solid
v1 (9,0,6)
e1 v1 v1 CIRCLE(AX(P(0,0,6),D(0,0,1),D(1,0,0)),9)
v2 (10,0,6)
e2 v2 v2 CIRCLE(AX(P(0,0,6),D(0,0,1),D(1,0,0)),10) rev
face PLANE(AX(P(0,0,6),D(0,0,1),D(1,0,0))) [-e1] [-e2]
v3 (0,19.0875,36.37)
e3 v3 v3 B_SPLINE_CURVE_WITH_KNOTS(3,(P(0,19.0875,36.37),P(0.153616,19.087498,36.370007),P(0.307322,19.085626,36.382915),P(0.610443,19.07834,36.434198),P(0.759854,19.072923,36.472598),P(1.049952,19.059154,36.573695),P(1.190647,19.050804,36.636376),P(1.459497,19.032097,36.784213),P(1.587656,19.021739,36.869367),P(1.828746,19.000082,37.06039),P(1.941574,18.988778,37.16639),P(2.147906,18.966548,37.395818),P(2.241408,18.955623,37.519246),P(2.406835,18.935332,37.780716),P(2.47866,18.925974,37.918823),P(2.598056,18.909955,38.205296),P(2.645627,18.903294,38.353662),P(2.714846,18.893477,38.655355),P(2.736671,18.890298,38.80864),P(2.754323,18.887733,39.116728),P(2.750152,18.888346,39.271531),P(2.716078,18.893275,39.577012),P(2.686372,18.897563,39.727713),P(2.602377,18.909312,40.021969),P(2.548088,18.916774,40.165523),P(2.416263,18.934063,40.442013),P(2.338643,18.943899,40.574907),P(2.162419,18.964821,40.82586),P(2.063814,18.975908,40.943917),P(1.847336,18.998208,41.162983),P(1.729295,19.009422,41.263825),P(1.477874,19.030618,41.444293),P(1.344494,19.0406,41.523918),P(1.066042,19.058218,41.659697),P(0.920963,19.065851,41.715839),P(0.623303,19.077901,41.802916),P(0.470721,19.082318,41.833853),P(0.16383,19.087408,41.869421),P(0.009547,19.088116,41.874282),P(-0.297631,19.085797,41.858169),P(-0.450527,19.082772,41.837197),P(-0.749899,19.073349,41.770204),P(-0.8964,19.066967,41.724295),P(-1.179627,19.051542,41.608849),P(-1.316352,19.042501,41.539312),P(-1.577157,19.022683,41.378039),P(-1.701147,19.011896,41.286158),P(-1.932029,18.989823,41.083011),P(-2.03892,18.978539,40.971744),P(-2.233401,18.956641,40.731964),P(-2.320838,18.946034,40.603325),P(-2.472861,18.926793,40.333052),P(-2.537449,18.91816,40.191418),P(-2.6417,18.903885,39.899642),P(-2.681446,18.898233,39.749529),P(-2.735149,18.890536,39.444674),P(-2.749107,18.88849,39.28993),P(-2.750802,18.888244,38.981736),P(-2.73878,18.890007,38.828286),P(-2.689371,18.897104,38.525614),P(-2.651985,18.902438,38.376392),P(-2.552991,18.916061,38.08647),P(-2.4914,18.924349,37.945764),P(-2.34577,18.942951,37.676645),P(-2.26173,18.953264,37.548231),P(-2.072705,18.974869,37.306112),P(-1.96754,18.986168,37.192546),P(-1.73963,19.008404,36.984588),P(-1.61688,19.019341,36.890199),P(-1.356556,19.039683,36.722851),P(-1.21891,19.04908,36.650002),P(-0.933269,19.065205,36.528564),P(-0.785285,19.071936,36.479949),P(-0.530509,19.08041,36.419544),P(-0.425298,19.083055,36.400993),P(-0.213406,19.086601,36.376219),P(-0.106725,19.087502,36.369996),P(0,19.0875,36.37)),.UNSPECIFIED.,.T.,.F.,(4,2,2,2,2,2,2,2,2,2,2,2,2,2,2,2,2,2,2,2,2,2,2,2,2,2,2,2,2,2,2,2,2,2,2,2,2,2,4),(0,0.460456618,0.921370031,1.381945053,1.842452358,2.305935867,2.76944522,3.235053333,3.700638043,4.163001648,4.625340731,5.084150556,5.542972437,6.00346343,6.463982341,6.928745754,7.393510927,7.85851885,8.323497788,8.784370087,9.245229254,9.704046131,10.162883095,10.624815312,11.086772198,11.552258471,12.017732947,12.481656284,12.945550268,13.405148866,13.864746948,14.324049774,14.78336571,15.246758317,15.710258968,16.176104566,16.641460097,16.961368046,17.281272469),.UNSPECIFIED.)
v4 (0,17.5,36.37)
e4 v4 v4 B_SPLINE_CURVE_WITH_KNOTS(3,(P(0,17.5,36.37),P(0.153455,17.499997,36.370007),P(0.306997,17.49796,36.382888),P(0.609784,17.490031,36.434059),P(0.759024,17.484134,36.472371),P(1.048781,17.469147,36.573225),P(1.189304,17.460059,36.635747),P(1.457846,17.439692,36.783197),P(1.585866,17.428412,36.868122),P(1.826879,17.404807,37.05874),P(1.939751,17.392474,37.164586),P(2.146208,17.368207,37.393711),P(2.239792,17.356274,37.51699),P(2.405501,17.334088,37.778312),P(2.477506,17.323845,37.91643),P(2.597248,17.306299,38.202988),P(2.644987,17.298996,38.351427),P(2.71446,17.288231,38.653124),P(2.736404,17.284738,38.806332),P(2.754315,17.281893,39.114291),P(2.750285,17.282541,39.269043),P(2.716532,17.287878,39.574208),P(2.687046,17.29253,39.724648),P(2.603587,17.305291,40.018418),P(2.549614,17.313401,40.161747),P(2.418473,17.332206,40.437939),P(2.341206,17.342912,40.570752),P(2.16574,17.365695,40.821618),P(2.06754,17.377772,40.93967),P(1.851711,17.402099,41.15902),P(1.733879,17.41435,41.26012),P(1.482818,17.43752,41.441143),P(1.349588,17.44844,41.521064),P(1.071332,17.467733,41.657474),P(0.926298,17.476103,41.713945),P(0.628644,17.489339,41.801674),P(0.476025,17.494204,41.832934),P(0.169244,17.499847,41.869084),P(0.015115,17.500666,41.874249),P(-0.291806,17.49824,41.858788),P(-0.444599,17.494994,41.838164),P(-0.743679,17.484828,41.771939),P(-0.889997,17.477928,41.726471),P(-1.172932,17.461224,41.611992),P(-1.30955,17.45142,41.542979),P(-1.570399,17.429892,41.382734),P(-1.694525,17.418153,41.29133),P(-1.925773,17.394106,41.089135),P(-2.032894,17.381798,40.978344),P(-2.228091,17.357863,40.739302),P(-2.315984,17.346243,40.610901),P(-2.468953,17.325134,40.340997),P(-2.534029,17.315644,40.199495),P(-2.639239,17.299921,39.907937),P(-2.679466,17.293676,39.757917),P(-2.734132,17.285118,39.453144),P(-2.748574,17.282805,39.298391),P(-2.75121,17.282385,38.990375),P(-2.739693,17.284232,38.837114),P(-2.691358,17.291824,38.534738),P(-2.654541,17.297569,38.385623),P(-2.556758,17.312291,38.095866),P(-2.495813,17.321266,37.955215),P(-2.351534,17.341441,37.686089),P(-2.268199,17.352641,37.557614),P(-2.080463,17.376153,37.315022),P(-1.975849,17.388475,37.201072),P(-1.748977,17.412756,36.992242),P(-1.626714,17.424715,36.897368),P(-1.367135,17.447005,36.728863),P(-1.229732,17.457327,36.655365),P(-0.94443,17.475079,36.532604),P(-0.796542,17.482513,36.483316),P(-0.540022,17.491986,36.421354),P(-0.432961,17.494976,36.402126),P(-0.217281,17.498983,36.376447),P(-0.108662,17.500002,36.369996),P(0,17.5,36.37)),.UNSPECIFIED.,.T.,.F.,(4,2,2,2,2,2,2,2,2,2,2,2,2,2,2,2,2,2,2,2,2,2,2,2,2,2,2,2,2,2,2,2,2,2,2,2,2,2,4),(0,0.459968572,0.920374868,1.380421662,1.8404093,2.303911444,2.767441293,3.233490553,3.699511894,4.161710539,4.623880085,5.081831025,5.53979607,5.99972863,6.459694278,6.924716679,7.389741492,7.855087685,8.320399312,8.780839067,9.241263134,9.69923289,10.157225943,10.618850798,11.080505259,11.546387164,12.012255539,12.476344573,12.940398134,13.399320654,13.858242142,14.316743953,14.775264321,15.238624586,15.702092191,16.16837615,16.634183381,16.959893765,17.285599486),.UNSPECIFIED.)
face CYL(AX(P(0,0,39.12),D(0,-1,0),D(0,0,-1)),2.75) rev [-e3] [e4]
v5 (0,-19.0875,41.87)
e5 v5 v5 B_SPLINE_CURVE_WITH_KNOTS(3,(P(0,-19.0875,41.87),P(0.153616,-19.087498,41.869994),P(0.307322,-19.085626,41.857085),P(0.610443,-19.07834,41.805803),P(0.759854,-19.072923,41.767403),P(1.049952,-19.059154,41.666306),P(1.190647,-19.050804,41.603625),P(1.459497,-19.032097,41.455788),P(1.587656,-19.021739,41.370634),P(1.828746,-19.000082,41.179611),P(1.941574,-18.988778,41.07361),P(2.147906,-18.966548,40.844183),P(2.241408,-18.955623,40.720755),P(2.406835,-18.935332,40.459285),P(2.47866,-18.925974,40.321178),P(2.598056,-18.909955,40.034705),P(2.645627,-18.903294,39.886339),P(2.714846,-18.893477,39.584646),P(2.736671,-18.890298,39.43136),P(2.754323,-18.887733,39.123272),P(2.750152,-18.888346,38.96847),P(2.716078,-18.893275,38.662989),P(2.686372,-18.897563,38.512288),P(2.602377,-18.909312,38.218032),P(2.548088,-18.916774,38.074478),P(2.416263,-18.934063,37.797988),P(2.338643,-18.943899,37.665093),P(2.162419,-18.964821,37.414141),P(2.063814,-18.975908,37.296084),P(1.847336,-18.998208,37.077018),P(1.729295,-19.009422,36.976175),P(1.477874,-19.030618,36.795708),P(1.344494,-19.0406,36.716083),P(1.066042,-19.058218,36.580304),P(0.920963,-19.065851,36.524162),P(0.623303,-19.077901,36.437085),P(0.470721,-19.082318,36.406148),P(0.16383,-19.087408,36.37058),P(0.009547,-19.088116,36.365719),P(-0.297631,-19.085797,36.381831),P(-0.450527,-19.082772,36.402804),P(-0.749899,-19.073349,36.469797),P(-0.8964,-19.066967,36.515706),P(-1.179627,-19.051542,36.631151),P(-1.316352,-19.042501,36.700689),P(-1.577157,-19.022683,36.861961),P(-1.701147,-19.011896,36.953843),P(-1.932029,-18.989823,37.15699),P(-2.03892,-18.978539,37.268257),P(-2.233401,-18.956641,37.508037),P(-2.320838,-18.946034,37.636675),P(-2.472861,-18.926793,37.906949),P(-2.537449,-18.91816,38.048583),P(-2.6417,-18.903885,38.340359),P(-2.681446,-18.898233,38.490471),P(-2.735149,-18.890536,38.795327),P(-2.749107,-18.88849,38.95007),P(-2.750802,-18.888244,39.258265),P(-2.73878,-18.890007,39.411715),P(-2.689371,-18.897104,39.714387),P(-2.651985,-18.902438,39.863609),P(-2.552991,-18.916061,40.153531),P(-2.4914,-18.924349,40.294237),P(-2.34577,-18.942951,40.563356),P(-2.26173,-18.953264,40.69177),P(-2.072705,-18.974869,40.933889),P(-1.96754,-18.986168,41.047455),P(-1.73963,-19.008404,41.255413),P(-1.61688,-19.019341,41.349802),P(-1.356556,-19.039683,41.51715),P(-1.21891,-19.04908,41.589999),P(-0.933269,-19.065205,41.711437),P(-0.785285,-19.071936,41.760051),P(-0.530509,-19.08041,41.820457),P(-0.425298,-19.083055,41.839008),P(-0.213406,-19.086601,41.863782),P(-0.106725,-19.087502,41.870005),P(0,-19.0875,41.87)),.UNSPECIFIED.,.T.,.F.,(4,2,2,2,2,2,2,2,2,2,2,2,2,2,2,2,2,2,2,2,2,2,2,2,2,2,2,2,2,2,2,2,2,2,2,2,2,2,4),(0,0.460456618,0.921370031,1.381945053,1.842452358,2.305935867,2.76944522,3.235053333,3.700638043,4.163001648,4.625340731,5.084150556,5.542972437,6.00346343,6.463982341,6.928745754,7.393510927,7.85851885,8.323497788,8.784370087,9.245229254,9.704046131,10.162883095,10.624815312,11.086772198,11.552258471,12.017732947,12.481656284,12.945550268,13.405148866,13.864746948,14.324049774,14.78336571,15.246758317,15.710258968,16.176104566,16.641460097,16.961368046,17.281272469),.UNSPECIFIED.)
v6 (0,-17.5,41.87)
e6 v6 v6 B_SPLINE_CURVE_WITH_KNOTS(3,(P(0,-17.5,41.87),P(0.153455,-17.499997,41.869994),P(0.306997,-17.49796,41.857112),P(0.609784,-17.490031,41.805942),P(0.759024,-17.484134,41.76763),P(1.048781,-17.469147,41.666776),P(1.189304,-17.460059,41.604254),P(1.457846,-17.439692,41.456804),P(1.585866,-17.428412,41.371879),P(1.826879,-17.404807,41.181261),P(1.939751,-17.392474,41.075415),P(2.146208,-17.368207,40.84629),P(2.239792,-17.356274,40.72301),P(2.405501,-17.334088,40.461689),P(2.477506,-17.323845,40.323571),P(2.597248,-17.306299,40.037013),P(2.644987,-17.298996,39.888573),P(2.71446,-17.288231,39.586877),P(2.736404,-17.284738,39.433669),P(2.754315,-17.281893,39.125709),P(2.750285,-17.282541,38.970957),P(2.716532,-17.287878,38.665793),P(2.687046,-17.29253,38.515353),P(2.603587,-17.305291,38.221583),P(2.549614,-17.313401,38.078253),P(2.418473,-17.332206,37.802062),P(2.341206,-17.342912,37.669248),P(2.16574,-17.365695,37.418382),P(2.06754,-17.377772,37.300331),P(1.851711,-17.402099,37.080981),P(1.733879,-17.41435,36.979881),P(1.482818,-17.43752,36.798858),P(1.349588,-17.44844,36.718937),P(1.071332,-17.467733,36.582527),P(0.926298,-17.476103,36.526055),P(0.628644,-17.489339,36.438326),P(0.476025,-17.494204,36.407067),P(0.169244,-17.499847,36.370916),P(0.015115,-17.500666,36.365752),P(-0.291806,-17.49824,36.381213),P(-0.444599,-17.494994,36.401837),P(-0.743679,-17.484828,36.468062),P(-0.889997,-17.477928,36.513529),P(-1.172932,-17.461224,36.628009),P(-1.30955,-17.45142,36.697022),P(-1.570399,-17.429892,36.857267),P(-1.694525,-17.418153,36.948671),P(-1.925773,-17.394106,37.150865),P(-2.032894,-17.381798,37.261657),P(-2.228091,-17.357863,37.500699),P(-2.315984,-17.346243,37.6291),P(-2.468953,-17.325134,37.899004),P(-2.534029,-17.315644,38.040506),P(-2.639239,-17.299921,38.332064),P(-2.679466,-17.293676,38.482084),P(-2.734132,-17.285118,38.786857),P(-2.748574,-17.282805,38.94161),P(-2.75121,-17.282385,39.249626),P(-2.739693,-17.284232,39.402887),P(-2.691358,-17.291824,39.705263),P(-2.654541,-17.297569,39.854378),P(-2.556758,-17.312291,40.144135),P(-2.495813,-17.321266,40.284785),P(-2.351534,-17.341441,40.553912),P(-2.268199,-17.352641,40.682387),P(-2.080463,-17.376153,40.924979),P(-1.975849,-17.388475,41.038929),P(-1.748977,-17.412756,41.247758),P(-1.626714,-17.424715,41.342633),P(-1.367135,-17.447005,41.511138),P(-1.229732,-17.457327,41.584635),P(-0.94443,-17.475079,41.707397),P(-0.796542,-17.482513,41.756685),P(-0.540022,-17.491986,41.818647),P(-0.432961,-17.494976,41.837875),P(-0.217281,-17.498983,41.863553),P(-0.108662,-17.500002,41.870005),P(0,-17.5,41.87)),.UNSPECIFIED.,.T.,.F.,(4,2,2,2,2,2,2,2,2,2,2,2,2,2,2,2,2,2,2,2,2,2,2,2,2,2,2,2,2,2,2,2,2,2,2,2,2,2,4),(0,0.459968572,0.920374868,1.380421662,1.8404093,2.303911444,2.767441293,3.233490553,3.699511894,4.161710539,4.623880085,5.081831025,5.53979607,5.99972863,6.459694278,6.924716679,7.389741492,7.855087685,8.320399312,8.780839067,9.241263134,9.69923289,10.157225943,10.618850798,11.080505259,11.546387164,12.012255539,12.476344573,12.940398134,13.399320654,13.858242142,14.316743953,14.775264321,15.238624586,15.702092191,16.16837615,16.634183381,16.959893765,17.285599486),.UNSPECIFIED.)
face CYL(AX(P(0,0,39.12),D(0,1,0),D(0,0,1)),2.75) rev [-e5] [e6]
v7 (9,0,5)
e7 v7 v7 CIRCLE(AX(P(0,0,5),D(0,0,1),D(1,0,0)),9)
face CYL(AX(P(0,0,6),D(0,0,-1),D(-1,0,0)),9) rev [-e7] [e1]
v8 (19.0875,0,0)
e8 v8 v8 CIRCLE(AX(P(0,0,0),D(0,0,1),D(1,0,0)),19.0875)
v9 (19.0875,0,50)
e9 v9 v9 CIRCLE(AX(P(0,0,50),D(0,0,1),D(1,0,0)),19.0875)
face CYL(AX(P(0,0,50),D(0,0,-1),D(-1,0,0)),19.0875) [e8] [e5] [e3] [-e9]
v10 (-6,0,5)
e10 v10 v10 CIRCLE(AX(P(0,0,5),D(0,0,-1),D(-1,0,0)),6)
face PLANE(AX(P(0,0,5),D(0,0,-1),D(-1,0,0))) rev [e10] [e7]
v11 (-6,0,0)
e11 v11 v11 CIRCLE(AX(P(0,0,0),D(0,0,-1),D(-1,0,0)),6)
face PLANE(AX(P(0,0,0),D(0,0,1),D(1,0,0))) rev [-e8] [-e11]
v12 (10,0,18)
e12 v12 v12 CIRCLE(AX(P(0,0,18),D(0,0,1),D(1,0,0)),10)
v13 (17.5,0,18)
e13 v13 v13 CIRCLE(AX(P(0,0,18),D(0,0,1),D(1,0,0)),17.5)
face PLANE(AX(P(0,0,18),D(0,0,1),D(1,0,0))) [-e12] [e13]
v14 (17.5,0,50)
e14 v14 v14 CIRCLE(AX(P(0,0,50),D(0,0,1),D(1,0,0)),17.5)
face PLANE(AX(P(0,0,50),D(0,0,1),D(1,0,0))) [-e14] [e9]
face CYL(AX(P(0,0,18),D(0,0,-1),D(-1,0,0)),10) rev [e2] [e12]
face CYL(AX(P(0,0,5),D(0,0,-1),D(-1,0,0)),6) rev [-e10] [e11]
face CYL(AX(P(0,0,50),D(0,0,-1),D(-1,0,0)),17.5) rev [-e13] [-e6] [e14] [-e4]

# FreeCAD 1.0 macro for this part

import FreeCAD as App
import Part
import Sketcher
from FreeCAD import Vector
Q = App.Units.Quantity


def add_polygon(sketch, points):
    """Adds a closed chain of lines whose ends are joined by coincident constraints."""
    first, n = sketch.GeometryCount, len(points)
    for a, b in zip(points, points[1:] + points[:1]):
        sketch.addGeometry(Part.LineSegment(App.Vector(*a, 0), App.Vector(*b, 0)), False)
    for i in range(n):
        sketch.addConstraint(Sketcher.Constraint("Coincident", first + i, 2, first + (i + 1) % n, 1))

doc = App.newDocument("Part")
body = doc.addObject("PartDesign::Body", "Body")

sketch1 = body.newObject("Sketcher::SketchObject", "Sketch")
sketch1.AttachmentSupport = (doc.getObject("XY_Plane"), [""])
sketch1.MapMode = "FlatFace"
sketch1.addGeometry([
    Part.Circle(Vector(0, 0, 0), Vector(0, 0, 1), 19),
    Part.Circle(Vector(0, 0, 0), Vector(0, 0, 1), 18),
], False)
sketch1.addConstraint([
    Sketcher.Constraint("Coincident", 0, 3, -1, 1),
    Sketcher.Constraint("Coincident", 1, 3, -1, 1),
    Sketcher.Constraint("Diameter", 1, Q("35 mm")),
    Sketcher.Constraint("Diameter", 0, Q("38.175 mm")),
])
pad1 = body.newObject("PartDesign::Pad", "Pad")
pad1.Profile = sketch1
pad1.Length = 50

sketch2 = body.newObject("Sketcher::SketchObject", "Sketch001")
sketch2.AttachmentSupport = (doc.getObject("XY_Plane"), [""])
sketch2.MapMode = "FlatFace"
sketch2.addGeometry([
    Part.Circle(Vector(0, 0, 0), Vector(0, 0, 1), 18),
    Part.Circle(Vector(0, 0, 0), Vector(0, 0, 1), 6),
], False)
sketch2.addConstraint([
    Sketcher.Constraint("Coincident", 0, 3, -1, 1),
    Sketcher.Constraint("Coincident", 1, 3, -1, 1),
    Sketcher.Constraint("Diameter", 0, Q("35 mm")),
    Sketcher.Constraint("Diameter", 1, Q("12 mm")),
])
pad2 = body.newObject("PartDesign::Pad", "Pad001")
pad2.Profile = sketch2
pad2.Length = 5

sketch3 = body.newObject("Sketcher::SketchObject", "Sketch002")
sketch3.AttachmentSupport = (doc.getObject("XY_Plane"), [""])
sketch3.MapMode = "FlatFace"
sketch3.AttachmentOffset = App.Placement(Vector(0, 0, 5), App.Rotation())
sketch3.addGeometry([
    Part.Circle(Vector(0, 0, 0), Vector(0, 0, 1), 18),
    Part.Circle(Vector(0, 0, 0), Vector(0, 0, 1), 9),
], False)
sketch3.addConstraint([
    Sketcher.Constraint("Coincident", 0, 3, -1, 1),
    Sketcher.Constraint("Coincident", 1, 3, -1, 1),
    Sketcher.Constraint("Diameter", 0, Q("35 mm")),
    Sketcher.Constraint("Diameter", 1, Q("18 mm")),
])
pad3 = body.newObject("PartDesign::Pad", "Pad002")
pad3.Profile = sketch3
pad3.Length = 1

sketch4 = body.newObject("Sketcher::SketchObject", "Sketch003")
sketch4.AttachmentSupport = (doc.getObject("XY_Plane"), [""])
sketch4.MapMode = "FlatFace"
sketch4.AttachmentOffset = App.Placement(Vector(0, 0, 6), App.Rotation())
sketch4.addGeometry([
    Part.Circle(Vector(0, 0, 0), Vector(0, 0, 1), 18),
    Part.Circle(Vector(0, 0, 0), Vector(0, 0, 1), 10),
], False)
sketch4.addConstraint([
    Sketcher.Constraint("Coincident", 0, 3, -1, 1),
    Sketcher.Constraint("Coincident", 1, 3, -1, 1),
    Sketcher.Constraint("Diameter", 0, Q("35 mm")),
    Sketcher.Constraint("Diameter", 1, Q("20 mm")),
])
pad4 = body.newObject("PartDesign::Pad", "Pad003")
pad4.Profile = sketch4
pad4.Length = 12

sketch5 = body.newObject("Sketcher::SketchObject", "Sketch004")
sketch5.AttachmentSupport = (doc.getObject("YZ_Plane"), [""])
sketch5.MapMode = "FlatFace"
add_polygon(sketch5, [(19.1, 39.1), (0, 39.1), (0, 36.4), (19.1, 36.4)])
sketch5.addGeometry(Part.LineSegment(Vector(0, 39.1, 0), Vector(19.1, 39.1, 0)), True)
sketch5.addConstraint([
    Sketcher.Constraint("Horizontal", 0),
    Sketcher.Constraint("Vertical", 1),
    Sketcher.Constraint("Horizontal", 2),
    Sketcher.Constraint("Vertical", 3),
    Sketcher.Constraint("Horizontal", 4),
    Sketcher.Constraint("Coincident", 4, 1, 0, 2),
    Sketcher.Constraint("PointOnObject", 0, 2, -2),
    Sketcher.Constraint("Vertical", 2, 2, 4, 2),
    Sketcher.Constraint("DistanceY", 1, 2, 1, 1, Q("2.75 mm")),
    Sketcher.Constraint("DistanceY", -1, 1, 0, 2, Q("39.12 mm")),
    Sketcher.Constraint("DistanceX", 0, 2, 0, 1, Q("19.0875 mm")),
])
groove = body.newObject("PartDesign::Groove", "Groove")
groove.Profile = sketch5
groove.ReferenceAxis = (sketch5, ["Axis0"])
groove.Angle = 360
doc.recompute()

mirrored = body.newObject("PartDesign::Mirrored", "Mirrored")
mirrored.Originals = [groove]
mirrored.MirrorPlane = (doc.getObject("XZ_Plane"), [""])
body.Tip = mirrored

doc.recompute()
